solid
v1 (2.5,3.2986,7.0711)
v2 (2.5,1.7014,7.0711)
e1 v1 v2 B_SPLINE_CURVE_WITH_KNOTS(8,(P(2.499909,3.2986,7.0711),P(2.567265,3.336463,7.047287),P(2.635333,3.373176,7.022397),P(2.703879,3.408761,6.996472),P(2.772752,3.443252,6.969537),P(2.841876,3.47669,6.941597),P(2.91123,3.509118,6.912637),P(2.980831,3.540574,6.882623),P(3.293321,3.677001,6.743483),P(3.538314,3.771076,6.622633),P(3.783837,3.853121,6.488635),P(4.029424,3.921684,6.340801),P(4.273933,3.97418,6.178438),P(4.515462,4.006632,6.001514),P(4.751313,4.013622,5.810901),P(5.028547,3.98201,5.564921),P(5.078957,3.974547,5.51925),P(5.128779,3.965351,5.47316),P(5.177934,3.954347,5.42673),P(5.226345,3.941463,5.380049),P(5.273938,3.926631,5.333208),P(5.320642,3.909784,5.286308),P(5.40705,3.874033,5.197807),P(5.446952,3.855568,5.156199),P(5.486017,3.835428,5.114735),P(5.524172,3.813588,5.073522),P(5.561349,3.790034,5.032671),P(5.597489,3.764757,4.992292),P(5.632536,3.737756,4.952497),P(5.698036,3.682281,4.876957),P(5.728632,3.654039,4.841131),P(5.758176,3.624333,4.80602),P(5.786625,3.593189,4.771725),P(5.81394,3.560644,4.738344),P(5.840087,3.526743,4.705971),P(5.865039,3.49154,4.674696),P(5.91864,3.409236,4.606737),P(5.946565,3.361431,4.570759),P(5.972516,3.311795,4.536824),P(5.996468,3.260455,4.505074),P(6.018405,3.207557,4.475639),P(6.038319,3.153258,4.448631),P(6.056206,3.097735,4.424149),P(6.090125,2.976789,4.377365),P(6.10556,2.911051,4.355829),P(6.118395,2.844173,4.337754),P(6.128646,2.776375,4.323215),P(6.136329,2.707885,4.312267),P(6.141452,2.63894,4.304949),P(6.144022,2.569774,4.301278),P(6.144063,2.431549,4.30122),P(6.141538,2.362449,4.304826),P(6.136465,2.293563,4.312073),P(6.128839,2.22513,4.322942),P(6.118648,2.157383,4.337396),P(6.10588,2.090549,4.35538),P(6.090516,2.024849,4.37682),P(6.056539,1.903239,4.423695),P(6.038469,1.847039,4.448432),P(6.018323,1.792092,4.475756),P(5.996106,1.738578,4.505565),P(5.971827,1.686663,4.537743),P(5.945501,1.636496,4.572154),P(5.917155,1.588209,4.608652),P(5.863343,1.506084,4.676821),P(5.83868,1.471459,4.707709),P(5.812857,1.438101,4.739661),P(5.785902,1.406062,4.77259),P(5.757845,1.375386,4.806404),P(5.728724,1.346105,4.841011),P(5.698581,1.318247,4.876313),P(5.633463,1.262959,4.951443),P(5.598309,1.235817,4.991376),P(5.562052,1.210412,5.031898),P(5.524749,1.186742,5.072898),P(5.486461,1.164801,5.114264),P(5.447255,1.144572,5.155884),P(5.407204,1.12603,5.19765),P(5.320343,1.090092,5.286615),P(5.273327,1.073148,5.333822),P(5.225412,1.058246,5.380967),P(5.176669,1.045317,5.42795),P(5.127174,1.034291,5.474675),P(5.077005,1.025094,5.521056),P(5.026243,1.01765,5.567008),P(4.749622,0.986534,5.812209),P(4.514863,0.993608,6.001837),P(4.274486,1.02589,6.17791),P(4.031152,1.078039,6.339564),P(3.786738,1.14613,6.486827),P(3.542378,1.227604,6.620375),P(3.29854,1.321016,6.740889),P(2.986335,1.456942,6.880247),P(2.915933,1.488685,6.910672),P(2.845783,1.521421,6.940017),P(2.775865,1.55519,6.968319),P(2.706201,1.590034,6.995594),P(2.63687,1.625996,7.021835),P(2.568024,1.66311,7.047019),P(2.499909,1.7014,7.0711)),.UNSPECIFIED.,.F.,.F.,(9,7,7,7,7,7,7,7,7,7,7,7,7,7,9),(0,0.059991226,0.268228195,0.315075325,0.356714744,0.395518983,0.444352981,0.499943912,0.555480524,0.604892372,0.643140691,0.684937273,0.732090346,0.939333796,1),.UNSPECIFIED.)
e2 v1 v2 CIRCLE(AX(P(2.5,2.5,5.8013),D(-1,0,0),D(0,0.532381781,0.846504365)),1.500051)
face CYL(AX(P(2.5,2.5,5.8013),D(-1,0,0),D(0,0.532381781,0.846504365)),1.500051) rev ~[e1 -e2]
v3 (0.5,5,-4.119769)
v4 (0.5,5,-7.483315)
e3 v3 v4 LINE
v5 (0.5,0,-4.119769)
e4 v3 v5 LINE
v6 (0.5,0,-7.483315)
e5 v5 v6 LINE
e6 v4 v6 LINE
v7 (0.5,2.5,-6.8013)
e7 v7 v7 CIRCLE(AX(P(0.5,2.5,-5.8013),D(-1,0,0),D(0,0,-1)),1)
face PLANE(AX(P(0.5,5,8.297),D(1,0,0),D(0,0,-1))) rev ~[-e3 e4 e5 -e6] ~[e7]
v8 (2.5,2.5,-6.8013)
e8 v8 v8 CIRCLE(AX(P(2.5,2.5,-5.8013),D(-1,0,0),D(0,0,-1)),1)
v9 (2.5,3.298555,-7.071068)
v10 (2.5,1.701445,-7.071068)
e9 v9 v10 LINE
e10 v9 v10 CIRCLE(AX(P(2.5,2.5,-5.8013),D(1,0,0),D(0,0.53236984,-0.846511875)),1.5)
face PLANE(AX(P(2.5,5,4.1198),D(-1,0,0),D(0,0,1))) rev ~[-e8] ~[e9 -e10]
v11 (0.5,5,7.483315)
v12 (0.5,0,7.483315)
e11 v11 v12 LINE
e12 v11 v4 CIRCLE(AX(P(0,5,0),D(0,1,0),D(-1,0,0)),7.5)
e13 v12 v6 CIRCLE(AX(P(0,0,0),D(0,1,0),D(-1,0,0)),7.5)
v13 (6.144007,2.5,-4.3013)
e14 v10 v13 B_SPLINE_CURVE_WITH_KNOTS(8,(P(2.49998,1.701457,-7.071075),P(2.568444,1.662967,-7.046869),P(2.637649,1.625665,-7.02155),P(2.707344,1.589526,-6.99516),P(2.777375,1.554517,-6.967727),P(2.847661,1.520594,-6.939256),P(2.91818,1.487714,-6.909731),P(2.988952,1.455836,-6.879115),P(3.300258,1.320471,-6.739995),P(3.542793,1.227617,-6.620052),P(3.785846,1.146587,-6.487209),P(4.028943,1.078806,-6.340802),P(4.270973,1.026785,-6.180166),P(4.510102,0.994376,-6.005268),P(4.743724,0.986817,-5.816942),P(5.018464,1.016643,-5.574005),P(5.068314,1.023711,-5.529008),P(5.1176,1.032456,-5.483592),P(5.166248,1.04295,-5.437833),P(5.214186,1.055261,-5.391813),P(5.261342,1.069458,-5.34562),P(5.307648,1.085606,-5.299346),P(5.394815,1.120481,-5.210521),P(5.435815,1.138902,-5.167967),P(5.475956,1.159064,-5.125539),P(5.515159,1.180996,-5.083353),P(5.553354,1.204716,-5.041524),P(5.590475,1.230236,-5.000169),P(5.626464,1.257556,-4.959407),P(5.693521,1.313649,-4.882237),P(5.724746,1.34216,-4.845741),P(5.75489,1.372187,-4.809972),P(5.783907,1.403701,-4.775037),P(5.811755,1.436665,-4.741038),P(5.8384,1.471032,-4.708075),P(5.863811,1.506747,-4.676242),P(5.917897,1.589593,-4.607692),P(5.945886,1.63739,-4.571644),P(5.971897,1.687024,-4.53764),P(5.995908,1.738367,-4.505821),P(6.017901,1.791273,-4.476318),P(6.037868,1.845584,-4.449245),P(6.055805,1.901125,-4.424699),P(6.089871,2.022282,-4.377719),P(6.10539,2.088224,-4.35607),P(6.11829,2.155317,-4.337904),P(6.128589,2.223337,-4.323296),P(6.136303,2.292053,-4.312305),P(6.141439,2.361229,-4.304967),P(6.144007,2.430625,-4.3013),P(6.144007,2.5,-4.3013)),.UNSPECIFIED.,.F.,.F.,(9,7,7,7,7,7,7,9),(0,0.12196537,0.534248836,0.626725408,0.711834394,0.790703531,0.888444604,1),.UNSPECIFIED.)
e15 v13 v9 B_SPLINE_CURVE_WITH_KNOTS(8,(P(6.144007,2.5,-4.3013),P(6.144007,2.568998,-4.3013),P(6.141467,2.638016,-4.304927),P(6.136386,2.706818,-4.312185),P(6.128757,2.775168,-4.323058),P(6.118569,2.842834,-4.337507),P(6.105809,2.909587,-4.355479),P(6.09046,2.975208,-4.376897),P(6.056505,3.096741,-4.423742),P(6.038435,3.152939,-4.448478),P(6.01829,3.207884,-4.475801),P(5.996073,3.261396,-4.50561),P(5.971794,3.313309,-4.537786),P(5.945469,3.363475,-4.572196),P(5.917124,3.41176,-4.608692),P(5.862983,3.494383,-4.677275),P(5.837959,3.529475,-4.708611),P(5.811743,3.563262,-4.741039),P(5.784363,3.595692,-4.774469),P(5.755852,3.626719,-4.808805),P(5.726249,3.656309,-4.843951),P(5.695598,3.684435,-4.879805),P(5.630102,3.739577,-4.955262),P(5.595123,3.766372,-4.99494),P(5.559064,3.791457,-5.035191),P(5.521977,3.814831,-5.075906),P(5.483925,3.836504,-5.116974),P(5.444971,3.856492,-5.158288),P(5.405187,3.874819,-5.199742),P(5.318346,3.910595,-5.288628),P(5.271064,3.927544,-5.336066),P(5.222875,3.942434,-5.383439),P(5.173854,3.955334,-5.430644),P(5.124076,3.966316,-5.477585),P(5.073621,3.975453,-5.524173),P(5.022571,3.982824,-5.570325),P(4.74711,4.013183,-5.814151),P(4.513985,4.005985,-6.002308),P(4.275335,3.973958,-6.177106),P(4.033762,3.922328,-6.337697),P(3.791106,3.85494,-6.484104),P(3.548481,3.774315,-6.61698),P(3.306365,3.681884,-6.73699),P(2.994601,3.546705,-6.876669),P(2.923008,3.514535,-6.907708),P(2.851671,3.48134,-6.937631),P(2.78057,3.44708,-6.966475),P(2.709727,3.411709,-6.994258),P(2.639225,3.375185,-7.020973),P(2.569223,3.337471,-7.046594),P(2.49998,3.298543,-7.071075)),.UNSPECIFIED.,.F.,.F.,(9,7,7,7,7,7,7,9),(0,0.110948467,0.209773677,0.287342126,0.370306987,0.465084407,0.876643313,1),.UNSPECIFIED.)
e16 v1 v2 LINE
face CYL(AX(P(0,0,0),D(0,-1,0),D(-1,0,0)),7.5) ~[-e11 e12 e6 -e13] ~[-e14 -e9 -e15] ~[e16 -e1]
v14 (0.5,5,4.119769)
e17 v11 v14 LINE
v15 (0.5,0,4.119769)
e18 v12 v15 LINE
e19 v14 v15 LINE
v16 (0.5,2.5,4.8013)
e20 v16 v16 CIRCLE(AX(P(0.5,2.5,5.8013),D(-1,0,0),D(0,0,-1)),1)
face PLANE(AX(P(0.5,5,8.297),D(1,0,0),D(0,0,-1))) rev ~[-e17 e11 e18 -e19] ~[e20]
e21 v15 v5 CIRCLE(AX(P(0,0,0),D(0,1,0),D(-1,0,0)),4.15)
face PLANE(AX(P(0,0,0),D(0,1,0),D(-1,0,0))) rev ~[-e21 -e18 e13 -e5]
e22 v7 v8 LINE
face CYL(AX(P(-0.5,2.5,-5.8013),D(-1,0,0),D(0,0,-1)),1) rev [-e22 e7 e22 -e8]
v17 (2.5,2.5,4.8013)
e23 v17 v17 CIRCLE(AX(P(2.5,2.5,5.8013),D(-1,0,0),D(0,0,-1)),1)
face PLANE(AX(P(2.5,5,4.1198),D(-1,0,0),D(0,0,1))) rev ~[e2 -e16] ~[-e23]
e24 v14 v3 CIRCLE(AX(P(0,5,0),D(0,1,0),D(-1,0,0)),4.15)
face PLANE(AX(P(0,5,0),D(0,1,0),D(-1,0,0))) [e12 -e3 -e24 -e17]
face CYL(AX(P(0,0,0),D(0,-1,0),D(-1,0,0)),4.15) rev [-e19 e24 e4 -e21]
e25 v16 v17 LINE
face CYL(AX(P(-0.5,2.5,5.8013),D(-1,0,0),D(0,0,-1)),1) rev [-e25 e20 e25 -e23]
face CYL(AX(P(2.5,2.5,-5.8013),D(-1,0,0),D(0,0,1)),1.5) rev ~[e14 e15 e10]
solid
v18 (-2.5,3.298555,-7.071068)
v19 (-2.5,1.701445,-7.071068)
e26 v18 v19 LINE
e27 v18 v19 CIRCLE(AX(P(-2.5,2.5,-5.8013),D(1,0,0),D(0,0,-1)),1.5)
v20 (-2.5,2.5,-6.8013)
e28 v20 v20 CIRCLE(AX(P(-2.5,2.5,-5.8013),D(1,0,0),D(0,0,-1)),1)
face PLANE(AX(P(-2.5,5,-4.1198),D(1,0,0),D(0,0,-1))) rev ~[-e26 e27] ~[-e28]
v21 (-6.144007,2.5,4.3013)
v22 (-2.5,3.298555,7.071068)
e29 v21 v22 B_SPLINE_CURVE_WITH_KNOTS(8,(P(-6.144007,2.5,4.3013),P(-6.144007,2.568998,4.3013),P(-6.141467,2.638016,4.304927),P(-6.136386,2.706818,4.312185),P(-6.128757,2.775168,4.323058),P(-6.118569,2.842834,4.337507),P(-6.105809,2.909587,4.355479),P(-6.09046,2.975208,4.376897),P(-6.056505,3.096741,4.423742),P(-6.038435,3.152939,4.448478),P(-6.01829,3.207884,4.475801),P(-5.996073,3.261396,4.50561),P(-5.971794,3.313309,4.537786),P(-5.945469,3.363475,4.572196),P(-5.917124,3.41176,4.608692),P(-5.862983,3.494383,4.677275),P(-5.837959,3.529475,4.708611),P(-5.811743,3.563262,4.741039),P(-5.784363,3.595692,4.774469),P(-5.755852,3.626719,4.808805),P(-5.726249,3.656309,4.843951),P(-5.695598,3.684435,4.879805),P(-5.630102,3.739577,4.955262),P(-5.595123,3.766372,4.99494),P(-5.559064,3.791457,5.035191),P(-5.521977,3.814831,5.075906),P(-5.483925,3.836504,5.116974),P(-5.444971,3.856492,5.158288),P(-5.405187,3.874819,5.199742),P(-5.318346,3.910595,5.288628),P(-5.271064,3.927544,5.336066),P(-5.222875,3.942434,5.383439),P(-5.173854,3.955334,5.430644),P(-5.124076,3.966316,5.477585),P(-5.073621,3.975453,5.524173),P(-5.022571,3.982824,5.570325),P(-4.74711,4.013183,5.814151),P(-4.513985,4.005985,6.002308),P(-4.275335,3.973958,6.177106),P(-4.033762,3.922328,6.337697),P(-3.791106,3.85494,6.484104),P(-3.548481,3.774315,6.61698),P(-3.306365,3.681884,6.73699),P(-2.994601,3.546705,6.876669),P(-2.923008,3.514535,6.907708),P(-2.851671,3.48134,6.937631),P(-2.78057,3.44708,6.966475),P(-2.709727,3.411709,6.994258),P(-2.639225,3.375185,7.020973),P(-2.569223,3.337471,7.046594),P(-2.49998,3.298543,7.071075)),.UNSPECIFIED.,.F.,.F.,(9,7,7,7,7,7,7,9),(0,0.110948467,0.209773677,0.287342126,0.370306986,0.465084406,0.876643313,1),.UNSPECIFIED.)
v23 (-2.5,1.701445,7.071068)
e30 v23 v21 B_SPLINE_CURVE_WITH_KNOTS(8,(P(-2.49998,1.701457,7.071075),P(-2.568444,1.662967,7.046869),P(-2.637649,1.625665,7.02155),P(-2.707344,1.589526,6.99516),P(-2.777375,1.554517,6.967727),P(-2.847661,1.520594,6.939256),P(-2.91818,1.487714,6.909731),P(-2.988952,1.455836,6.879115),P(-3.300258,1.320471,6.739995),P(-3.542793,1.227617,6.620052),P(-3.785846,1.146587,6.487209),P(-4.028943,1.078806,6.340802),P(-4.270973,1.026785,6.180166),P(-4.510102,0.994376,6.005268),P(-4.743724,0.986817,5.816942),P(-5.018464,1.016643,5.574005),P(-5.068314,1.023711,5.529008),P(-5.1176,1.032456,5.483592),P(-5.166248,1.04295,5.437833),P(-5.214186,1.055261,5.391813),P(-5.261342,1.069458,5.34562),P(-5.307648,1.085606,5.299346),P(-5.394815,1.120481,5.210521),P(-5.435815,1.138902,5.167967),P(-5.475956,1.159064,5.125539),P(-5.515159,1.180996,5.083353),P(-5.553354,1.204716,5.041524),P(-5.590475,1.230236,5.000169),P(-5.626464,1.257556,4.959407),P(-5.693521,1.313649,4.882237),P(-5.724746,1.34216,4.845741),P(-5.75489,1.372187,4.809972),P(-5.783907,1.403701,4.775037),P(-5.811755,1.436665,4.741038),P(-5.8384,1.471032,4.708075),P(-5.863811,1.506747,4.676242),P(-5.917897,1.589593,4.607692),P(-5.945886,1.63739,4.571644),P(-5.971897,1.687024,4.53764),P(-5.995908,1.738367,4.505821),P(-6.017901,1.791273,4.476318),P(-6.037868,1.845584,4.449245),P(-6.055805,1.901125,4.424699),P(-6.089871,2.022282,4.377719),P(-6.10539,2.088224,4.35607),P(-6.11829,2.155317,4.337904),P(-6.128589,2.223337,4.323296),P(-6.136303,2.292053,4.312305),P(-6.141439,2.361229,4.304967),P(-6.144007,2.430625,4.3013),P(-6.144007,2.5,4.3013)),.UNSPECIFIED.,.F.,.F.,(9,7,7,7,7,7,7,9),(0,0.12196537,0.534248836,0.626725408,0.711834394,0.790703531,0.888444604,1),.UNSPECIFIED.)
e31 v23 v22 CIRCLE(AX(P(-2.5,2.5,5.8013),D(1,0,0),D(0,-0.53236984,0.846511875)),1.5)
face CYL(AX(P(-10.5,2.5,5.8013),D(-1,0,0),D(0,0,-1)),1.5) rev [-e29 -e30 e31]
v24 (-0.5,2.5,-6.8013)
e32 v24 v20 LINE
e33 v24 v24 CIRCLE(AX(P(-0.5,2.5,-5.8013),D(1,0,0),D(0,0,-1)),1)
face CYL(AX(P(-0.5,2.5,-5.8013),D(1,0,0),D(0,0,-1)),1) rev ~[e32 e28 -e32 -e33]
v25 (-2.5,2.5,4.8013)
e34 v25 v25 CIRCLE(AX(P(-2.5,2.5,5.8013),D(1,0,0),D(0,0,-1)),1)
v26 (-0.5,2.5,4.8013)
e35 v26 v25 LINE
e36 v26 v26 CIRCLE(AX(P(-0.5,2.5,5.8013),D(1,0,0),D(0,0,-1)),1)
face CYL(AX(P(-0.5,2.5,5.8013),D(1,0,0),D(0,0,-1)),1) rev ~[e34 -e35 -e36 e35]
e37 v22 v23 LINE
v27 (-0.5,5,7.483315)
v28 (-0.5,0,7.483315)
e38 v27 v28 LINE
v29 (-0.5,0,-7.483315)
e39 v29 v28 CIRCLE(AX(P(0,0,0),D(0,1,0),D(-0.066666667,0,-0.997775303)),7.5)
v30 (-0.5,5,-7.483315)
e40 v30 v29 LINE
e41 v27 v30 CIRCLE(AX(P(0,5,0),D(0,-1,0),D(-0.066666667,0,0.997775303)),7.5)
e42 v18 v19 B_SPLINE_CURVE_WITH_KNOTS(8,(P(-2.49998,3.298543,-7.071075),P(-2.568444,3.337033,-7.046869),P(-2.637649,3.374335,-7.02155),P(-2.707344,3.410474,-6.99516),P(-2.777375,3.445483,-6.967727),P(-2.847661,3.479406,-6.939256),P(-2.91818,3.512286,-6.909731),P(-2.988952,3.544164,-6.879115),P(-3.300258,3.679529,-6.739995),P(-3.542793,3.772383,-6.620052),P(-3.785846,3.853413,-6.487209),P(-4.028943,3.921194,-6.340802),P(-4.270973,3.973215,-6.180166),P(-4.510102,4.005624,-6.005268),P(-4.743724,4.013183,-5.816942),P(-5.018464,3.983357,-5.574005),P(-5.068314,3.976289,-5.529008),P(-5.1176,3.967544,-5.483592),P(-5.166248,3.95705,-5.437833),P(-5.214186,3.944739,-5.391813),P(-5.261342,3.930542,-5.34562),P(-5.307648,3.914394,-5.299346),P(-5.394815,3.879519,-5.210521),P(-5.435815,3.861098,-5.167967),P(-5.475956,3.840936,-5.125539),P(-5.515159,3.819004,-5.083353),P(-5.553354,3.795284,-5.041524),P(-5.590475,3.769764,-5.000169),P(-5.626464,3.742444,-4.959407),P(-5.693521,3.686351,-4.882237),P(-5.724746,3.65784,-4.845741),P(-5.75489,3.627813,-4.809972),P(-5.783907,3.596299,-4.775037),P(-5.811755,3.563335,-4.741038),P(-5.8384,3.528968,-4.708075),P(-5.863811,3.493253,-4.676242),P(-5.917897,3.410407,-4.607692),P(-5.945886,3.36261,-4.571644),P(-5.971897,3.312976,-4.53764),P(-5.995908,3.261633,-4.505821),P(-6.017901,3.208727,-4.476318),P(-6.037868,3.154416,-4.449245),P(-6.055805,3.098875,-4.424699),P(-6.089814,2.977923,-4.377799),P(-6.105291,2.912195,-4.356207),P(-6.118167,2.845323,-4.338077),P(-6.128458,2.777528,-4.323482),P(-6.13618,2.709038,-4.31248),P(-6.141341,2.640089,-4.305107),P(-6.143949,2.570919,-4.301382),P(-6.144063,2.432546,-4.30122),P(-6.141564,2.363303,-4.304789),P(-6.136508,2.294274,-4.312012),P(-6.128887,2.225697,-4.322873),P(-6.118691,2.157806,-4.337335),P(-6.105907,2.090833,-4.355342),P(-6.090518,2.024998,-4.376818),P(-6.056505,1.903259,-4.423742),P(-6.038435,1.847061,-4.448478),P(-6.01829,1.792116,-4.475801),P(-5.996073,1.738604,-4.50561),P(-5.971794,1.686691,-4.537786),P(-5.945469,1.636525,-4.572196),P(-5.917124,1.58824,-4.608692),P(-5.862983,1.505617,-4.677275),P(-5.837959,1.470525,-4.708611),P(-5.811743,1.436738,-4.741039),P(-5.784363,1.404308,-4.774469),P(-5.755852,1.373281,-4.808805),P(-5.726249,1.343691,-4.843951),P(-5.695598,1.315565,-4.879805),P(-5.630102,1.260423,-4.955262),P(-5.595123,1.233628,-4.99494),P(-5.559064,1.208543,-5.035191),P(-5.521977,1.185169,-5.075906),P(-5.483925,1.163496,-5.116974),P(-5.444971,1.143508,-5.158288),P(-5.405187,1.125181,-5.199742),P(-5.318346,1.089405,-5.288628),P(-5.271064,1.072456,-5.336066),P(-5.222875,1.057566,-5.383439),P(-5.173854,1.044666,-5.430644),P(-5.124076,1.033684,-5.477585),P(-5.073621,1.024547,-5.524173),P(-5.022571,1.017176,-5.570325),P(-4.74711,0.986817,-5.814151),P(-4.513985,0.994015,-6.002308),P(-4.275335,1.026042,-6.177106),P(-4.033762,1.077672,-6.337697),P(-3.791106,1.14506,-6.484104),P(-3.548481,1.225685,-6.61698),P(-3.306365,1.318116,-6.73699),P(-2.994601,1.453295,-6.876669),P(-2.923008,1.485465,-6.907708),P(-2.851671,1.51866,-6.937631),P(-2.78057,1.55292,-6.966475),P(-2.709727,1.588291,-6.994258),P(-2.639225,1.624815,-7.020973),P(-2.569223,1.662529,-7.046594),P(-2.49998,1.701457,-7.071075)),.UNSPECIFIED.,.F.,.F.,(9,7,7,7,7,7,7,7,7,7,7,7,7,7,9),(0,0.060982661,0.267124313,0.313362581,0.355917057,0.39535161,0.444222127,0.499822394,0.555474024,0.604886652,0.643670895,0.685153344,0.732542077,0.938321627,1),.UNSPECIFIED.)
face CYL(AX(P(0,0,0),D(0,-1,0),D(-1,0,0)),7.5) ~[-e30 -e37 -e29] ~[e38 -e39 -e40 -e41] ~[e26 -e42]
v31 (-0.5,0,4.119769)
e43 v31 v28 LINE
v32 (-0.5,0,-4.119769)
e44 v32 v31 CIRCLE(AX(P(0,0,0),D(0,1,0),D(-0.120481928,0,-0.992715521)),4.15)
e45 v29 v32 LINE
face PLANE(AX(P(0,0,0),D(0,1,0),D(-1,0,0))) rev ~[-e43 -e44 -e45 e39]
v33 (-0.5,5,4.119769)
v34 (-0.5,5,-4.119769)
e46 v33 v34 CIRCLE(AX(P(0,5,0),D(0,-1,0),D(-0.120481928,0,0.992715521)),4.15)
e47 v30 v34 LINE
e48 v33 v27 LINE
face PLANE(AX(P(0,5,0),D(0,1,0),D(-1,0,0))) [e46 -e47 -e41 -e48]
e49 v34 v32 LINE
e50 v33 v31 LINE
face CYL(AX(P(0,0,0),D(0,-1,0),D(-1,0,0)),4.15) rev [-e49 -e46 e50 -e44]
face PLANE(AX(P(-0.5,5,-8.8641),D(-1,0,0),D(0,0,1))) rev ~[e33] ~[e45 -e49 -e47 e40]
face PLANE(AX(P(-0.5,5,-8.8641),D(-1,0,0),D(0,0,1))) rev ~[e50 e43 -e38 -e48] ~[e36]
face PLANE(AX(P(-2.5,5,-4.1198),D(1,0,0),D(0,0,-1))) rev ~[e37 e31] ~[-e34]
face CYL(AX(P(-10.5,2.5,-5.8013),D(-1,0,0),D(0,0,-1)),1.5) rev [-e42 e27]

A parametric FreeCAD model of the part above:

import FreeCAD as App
import Part
import Sketcher

V = App.Vector
Q = App.Units.Quantity

doc = App.newDocument("Part")
body = doc.addObject("PartDesign::Body", "Body")
body.AllowCompound = True

sketch1 = body.newObject("Sketcher::SketchObject", "Sketch")
sketch1.AttachmentSupport = (doc.getObject("XZ_Plane"), [""])
sketch1.MapMode = "FlatFace"
sketch1.addGeometry(Part.Circle(V(0, 0, 0), V(0, 0, 1), 7.5), False)
sketch1.addGeometry(Part.Circle(V(0, 0, 0), V(0, 0, 1), 4.2), False)
sketch1.addConstraint(Sketcher.Constraint("Coincident", 0, 3, -1, 1))
sketch1.addConstraint(Sketcher.Constraint("Coincident", 1, 3, -1, 1))
sketch1.addConstraint(Sketcher.Constraint("Diameter", 0, Q("15 mm")))
sketch1.addConstraint(Sketcher.Constraint("Diameter", 1, Q("8.3 mm")))
pad1 = body.newObject("PartDesign::Pad", "Pad")
pad1.Profile = sketch1
pad1.Length = 5
pad1.Reversed = True

sketch2 = body.newObject("Sketcher::SketchObject", "Sketch001")
sketch2.AttachmentSupport = (doc.getObject("XZ_Plane"), [""])
sketch2.MapMode = "FlatFace"
sketch2.AttachmentOffset = App.Placement(V(0, 0, -5), App.Rotation())
sketch2.addGeometry(Part.LineSegment(V(-0.5, -8.9, 0), V(-0.5, 8.3, 0)), False)
sketch2.addGeometry(Part.LineSegment(V(-0.5, 8.3, 0), V(0.5, 8.3, 0)), False)
sketch2.addGeometry(Part.LineSegment(V(0.5, 8.3, 0), V(0.5, -8.9, 0)), False)
sketch2.addGeometry(Part.LineSegment(V(0.5, -8.9, 0), V(-0.5, -8.9, 0)), False)
sketch2.addConstraint(Sketcher.Constraint("Coincident", 0, 2, 1, 1))
sketch2.addConstraint(Sketcher.Constraint("Coincident", 1, 2, 2, 1))
sketch2.addConstraint(Sketcher.Constraint("Coincident", 2, 2, 3, 1))
sketch2.addConstraint(Sketcher.Constraint("Coincident", 3, 2, 0, 1))
sketch2.addConstraint(Sketcher.Constraint("Vertical", 0))
sketch2.addConstraint(Sketcher.Constraint("Horizontal", 1))
sketch2.addConstraint(Sketcher.Constraint("Vertical", 2))
sketch2.addConstraint(Sketcher.Constraint("Horizontal", 3))
sketch2.addConstraint(Sketcher.Constraint("DistanceX", 1, 1, 1, 2, Q("1 mm")))
sketch2.addConstraint(Sketcher.Constraint("DistanceX", 0, 2, -1, 1, Q("0.5 mm")))
sketch2.addConstraint(Sketcher.Constraint("DistanceY", 0, 1, 0, 2, Q("17.161 mm")))
sketch2.addConstraint(Sketcher.Constraint("DistanceY", -1, 1, 0, 2, Q("8.297 mm")))
pocket1 = body.newObject("PartDesign::Pocket", "Pocket")
pocket1.Profile = sketch2
pocket1.Length = 5
pocket1.Reversed = True

sketch3 = body.newObject("Sketcher::SketchObject", "Sketch002")
sketch3.AttachmentSupport = (doc.getObject("YZ_Plane"), [""])
sketch3.MapMode = "FlatFace"
sketch3.AttachmentOffset = App.Placement(V(0, 0, -0.5), App.Rotation())
sketch3.addGeometry(Part.Circle(V(2.5, -5.8, 0), V(0, 0, 1), 1), False)
sketch3.addGeometry(Part.Circle(V(2.5, 5.8, 0), V(0, 0, 1), 1), False)
sketch3.addConstraint(Sketcher.Constraint("Equal", 0, 1))
sketch3.addConstraint(Sketcher.Constraint("Symmetric", 0, 3, 1, 3, -1))
sketch3.addConstraint(Sketcher.Constraint("Diameter", 0, Q("2 mm")))
sketch3.addConstraint(Sketcher.Constraint("DistanceX", -1, 1, 0, 3, Q("2.5 mm")))
sketch3.addConstraint(Sketcher.Constraint("DistanceY", 0, 3, -1, 1, Q("5.8013 mm")))
pocket2 = body.newObject("PartDesign::Pocket", "Pocket001")
pocket2.Profile = sketch3
pocket2.Length = 20
pocket2.Midplane = True

sketch4 = body.newObject("Sketcher::SketchObject", "Sketch003")
sketch4.AttachmentSupport = (doc.getObject("YZ_Plane"), [""])
sketch4.MapMode = "FlatFace"
sketch4.AttachmentOffset = App.Placement(V(0, 0, -10.5), App.Rotation())
sketch4.addGeometry(Part.Circle(V(2.5, -5.8, 0), V(0, 0, 1), 1.5), False)
sketch4.addGeometry(Part.Circle(V(2.5, 5.8, 0), V(0, 0, 1), 1.5), False)
sketch4.addConstraint(Sketcher.Constraint("Equal", 0, 1))
sketch4.addConstraint(Sketcher.Constraint("Symmetric", 0, 3, 1, 3, -1))
sketch4.addConstraint(Sketcher.Constraint("Diameter", 0, Q("3 mm")))
sketch4.addConstraint(Sketcher.Constraint("DistanceX", -1, 1, 0, 3, Q("2.5 mm")))
sketch4.addConstraint(Sketcher.Constraint("DistanceY", 0, 3, -1, 1, Q("5.8013 mm")))
pocket3 = body.newObject("PartDesign::Pocket", "Pocket002")
pocket3.Profile = sketch4
pocket3.Length = 8
pocket3.Reversed = True

sketch5 = body.newObject("Sketcher::SketchObject", "Sketch004")
sketch5.AttachmentSupport = (doc.getObject("YZ_Plane"), [""])
sketch5.MapMode = "FlatFace"
sketch5.AttachmentOffset = App.Placement(V(0, 0, 2.5), App.Rotation())
sketch5.addGeometry(Part.Circle(V(2.5, 5.8, 0), V(0, 0, 1), 1.5), False)
sketch5.addGeometry(Part.Circle(V(2.5, -5.8, 0), V(0, 0, 1), 1.5), False)
sketch5.addConstraint(Sketcher.Constraint("Equal", 0, 1))
sketch5.addConstraint(Sketcher.Constraint("Symmetric", 0, 3, 1, 3, -1))
sketch5.addConstraint(Sketcher.Constraint("Diameter", 0, Q("3 mm")))
sketch5.addConstraint(Sketcher.Constraint("DistanceX", -1, 1, 0, 3, Q("2.5 mm")))
sketch5.addConstraint(Sketcher.Constraint("DistanceY", -1, 1, 0, 3, Q("5.8013 mm")))
pocket4 = body.newObject("PartDesign::Pocket", "Pocket003")
pocket4.Profile = sketch5
pocket4.Length = 10
pocket4.Reversed = True

doc.recompute()
